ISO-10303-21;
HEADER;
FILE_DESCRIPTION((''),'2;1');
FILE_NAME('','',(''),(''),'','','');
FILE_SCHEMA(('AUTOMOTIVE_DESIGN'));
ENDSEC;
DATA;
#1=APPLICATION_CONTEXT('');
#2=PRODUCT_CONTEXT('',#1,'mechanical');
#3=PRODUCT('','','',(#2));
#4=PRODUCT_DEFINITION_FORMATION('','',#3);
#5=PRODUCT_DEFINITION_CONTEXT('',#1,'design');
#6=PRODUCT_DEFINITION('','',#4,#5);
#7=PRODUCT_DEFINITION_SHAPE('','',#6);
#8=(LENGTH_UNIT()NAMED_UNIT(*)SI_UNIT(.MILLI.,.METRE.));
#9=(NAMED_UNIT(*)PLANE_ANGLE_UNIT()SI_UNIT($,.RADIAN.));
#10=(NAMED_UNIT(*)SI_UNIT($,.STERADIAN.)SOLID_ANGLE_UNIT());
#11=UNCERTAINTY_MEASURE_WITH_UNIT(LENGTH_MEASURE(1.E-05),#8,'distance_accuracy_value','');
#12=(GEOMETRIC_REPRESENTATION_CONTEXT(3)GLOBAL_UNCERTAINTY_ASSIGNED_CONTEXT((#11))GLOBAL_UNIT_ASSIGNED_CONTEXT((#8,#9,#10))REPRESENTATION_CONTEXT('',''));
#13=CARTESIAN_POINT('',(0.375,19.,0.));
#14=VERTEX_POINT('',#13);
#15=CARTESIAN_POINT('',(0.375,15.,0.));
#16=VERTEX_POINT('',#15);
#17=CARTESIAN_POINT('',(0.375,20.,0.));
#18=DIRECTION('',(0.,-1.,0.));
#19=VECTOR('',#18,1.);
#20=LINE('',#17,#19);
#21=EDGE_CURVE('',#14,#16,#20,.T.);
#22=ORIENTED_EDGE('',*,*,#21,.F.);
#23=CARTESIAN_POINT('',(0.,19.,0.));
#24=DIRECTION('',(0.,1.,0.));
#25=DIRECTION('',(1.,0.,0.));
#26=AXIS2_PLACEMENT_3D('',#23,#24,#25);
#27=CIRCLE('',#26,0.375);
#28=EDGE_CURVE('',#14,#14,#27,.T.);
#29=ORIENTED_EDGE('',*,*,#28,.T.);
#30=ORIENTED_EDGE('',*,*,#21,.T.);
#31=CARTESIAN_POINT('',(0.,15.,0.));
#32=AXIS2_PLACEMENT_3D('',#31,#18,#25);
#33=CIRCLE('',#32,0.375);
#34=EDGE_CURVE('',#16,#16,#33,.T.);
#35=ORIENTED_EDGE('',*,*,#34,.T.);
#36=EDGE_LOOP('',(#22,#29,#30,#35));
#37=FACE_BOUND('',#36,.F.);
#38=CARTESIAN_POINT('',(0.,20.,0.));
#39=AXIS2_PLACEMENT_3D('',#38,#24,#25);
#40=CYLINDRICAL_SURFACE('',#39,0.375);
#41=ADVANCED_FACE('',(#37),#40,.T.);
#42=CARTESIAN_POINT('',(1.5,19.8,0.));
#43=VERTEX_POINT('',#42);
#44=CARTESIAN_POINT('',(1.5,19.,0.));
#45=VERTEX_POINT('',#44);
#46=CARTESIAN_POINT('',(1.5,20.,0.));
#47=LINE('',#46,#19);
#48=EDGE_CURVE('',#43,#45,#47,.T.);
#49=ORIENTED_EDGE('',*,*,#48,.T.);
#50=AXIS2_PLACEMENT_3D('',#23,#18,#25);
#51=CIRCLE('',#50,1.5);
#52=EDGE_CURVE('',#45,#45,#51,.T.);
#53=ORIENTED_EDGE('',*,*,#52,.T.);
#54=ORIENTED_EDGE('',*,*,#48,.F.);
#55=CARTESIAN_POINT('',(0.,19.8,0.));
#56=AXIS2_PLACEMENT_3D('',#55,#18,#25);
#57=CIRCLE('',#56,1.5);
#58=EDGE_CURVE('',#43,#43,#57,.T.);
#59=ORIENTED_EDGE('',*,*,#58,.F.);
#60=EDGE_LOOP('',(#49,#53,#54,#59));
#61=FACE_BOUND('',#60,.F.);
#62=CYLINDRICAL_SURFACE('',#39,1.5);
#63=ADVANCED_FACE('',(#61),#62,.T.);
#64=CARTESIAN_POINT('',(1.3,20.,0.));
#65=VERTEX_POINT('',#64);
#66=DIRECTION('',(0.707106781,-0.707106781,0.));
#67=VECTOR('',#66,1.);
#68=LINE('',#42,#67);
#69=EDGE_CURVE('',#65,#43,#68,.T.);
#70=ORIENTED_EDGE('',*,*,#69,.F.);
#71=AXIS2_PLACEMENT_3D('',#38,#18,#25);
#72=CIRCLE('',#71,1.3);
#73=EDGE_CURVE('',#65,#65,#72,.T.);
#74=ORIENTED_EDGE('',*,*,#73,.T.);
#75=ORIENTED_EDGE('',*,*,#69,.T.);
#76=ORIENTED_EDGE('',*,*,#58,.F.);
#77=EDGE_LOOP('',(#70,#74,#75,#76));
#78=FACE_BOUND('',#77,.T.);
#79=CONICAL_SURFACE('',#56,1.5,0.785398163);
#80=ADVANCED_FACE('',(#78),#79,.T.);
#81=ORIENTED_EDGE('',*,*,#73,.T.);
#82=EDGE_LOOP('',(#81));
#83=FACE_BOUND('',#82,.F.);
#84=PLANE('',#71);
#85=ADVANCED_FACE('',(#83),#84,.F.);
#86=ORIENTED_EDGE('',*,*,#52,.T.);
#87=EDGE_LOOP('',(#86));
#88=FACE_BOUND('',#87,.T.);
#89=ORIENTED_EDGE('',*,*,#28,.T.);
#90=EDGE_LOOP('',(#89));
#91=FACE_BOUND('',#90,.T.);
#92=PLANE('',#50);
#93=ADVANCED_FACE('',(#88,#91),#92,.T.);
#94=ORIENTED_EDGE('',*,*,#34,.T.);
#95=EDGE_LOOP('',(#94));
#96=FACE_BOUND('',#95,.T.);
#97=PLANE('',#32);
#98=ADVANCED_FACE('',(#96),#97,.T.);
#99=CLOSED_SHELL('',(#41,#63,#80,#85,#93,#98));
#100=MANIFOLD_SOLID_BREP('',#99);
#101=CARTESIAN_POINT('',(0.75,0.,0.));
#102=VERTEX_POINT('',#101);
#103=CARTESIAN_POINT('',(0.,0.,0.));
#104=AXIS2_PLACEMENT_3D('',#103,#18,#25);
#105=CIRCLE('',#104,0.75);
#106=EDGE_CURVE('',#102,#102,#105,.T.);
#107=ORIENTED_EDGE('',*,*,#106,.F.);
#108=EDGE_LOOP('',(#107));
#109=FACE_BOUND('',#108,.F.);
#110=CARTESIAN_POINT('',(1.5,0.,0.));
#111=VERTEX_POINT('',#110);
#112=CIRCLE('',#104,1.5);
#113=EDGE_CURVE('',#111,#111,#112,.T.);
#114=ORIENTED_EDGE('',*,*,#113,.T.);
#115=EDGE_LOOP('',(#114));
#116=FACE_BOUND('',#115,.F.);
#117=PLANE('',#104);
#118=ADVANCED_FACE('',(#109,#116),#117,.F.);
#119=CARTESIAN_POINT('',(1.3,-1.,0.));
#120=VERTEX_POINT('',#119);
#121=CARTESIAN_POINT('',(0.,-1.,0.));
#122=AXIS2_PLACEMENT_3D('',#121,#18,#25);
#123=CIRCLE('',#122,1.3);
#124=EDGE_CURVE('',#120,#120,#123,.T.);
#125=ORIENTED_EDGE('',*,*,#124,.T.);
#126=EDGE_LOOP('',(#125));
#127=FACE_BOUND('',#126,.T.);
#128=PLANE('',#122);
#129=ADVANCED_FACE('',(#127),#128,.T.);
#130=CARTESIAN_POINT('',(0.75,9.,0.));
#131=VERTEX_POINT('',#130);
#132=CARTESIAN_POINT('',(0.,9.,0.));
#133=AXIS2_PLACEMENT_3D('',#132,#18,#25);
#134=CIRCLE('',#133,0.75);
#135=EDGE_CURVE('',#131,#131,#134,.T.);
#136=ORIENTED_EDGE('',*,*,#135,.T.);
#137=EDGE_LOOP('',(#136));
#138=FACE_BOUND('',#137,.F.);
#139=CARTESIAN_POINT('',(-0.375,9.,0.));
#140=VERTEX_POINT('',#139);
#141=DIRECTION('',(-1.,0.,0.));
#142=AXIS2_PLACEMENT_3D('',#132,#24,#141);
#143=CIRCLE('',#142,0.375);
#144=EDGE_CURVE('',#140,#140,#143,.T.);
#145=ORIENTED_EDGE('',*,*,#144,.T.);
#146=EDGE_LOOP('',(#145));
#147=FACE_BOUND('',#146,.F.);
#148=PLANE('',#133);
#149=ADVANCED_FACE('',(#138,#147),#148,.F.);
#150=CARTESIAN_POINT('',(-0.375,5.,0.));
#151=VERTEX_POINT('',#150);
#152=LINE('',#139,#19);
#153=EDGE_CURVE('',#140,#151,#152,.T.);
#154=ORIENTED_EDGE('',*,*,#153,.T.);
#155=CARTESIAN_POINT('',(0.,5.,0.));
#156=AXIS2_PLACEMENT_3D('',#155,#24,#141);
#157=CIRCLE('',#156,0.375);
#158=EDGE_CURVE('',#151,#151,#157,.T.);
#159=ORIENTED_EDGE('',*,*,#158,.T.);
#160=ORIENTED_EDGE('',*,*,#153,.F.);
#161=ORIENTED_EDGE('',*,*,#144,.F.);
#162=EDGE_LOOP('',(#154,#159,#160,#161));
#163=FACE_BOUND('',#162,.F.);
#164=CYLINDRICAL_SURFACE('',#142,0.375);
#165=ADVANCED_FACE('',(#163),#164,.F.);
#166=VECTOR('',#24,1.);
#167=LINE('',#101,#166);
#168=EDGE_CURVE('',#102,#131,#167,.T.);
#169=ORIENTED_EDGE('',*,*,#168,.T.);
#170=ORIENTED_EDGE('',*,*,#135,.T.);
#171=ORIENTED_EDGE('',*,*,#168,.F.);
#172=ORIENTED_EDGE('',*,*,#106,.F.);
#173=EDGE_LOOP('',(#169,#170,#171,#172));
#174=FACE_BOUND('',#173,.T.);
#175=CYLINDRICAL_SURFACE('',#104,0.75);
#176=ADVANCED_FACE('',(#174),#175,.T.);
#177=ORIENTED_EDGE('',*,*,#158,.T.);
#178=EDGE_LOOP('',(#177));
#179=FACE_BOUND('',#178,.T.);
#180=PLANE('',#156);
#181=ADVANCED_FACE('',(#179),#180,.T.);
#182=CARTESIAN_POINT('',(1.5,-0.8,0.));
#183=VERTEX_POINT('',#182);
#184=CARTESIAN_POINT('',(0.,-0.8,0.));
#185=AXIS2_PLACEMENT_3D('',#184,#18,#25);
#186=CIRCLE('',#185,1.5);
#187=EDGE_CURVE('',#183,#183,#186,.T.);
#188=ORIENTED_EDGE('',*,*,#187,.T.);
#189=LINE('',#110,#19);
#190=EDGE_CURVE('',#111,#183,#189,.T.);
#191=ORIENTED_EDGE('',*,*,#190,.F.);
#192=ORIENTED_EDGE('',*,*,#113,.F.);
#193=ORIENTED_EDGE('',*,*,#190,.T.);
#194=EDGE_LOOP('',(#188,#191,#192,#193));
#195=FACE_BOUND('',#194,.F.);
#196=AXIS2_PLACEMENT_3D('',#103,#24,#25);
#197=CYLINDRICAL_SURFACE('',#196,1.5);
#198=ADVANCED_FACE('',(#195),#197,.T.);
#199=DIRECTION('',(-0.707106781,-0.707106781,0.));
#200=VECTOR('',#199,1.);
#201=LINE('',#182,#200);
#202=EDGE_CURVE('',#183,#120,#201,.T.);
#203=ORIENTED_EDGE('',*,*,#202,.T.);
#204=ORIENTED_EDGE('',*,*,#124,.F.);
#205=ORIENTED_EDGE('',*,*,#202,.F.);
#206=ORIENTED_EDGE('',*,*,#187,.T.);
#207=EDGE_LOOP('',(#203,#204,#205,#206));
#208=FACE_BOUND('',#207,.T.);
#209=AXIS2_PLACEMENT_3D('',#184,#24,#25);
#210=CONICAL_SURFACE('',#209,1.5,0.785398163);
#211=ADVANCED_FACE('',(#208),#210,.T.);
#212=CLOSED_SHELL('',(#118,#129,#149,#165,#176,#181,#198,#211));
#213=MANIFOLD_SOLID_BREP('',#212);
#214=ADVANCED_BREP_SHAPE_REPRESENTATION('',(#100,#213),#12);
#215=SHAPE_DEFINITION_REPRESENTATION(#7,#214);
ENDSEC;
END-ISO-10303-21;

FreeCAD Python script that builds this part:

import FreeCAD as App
import Part
import Sketcher


def edges_at(feature, points):
    """Names of the edges that pass closest to the given points."""
    edges = feature.Shape.Edges
    near = lambda p: min(range(len(edges)), key=lambda i: edges[i].distToShape(Part.Vertex(*p))[0])
    return sorted({f"Edge{near(p) + 1}" for p in points})

doc = App.newDocument("Part")
body = doc.addObject("PartDesign::Body", "Body")

# Sketch on XZ plane
sketch1 = body.newObject("Sketcher::SketchObject", "Sketch")
sketch1.AttachmentSupport = (doc.getObject("XZ_Plane"), [""])
sketch1.MapMode = "FlatFace"
sketch1.addGeometry(Part.Circle(App.Vector(0, 0, 0), App.Vector(0, 0, 1), 1.5), False)
sketch1.addConstraint(Sketcher.Constraint("Coincident", 0, 3, -1, 1))
sketch1.addConstraint(Sketcher.Constraint("Diameter", 0, 3.0))
pad1 = body.newObject("PartDesign::Pad", "Pad")
pad1.Profile = sketch1
pad1.Length = 1

# Sketch on XZ plane
sketch2 = body.newObject("Sketcher::SketchObject", "Sketch001")
sketch2.AttachmentSupport = (doc.getObject("XZ_Plane"), [""])
sketch2.MapMode = "FlatFace"
sketch2.addGeometry(Part.Circle(App.Vector(0, 0, 0), App.Vector(0, 0, 1), 0.75), False)
sketch2.addConstraint(Sketcher.Constraint("Coincident", 0, 3, -1, 1))
sketch2.addConstraint(Sketcher.Constraint("Diameter", 0, 1.5))
pad2 = body.newObject("PartDesign::Pad", "Pad001")
pad2.Profile = sketch2
pad2.Length = 9
pad2.Reversed = True

# Sketch on XZ plane
sketch3 = body.newObject("Sketcher::SketchObject", "Sketch002")
sketch3.AttachmentSupport = (doc.getObject("XZ_Plane"), [""])
sketch3.MapMode = "FlatFace"
sketch3.AttachmentOffset = App.Placement(App.Vector(0, 0, -9), App.Rotation())
sketch3.addGeometry(Part.Circle(App.Vector(0, 0, 0), App.Vector(0, 0, 1), 0.375), False)
sketch3.addConstraint(Sketcher.Constraint("Coincident", 0, 3, -1, 1))
sketch3.addConstraint(Sketcher.Constraint("Diameter", 0, 0.75))
pocket1 = body.newObject("PartDesign::Pocket", "Pocket")
pocket1.Profile = sketch3
pocket1.Length = 4
pocket1.Reversed = True
doc.recompute()

chamfer = body.newObject("PartDesign::Chamfer", "Chamfer")
chamfer.Base = (pocket1, edges_at(pocket1, [(-1.5, -1, 0)]))
chamfer.Size = 0.2
body2 = doc.addObject("PartDesign::Body", "Body001")

# Sketch on XZ plane
sketch4 = body2.newObject("Sketcher::SketchObject", "Sketch003")
sketch4.AttachmentSupport = (doc.getObject("XZ_Plane001"), [""])
sketch4.MapMode = "FlatFace"
sketch4.AttachmentOffset = App.Placement(App.Vector(0, 0, -20), App.Rotation())
sketch4.addGeometry(Part.Circle(App.Vector(0, 0, 0), App.Vector(0, 0, 1), 1.5), False)
sketch4.addConstraint(Sketcher.Constraint("Coincident", 0, 3, -1, 1))
sketch4.addConstraint(Sketcher.Constraint("Diameter", 0, 3.0))
pad3 = body2.newObject("PartDesign::Pad", "Pad002")
pad3.Profile = sketch4
pad3.Length = 1

# Sketch on XZ plane
sketch5 = body2.newObject("Sketcher::SketchObject", "Sketch004")
sketch5.AttachmentSupport = (doc.getObject("XZ_Plane001"), [""])
sketch5.MapMode = "FlatFace"
sketch5.AttachmentOffset = App.Placement(App.Vector(0, 0, -20), App.Rotation())
sketch5.addGeometry(Part.Circle(App.Vector(0, 0, 0), App.Vector(0, 0, 1), 0.375), False)
sketch5.addConstraint(Sketcher.Constraint("Coincident", 0, 3, -1, 1))
sketch5.addConstraint(Sketcher.Constraint("Diameter", 0, 0.75))
pad4 = body2.newObject("PartDesign::Pad", "Pad003")
pad4.Profile = sketch5
pad4.Length = 5
doc.recompute()

chamfer2 = body2.newObject("PartDesign::Chamfer", "Chamfer001")
chamfer2.Base = (pad4, edges_at(pad4, [(-1.5, 20, 0)]))
chamfer2.Size = 0.2

doc.recompute()
